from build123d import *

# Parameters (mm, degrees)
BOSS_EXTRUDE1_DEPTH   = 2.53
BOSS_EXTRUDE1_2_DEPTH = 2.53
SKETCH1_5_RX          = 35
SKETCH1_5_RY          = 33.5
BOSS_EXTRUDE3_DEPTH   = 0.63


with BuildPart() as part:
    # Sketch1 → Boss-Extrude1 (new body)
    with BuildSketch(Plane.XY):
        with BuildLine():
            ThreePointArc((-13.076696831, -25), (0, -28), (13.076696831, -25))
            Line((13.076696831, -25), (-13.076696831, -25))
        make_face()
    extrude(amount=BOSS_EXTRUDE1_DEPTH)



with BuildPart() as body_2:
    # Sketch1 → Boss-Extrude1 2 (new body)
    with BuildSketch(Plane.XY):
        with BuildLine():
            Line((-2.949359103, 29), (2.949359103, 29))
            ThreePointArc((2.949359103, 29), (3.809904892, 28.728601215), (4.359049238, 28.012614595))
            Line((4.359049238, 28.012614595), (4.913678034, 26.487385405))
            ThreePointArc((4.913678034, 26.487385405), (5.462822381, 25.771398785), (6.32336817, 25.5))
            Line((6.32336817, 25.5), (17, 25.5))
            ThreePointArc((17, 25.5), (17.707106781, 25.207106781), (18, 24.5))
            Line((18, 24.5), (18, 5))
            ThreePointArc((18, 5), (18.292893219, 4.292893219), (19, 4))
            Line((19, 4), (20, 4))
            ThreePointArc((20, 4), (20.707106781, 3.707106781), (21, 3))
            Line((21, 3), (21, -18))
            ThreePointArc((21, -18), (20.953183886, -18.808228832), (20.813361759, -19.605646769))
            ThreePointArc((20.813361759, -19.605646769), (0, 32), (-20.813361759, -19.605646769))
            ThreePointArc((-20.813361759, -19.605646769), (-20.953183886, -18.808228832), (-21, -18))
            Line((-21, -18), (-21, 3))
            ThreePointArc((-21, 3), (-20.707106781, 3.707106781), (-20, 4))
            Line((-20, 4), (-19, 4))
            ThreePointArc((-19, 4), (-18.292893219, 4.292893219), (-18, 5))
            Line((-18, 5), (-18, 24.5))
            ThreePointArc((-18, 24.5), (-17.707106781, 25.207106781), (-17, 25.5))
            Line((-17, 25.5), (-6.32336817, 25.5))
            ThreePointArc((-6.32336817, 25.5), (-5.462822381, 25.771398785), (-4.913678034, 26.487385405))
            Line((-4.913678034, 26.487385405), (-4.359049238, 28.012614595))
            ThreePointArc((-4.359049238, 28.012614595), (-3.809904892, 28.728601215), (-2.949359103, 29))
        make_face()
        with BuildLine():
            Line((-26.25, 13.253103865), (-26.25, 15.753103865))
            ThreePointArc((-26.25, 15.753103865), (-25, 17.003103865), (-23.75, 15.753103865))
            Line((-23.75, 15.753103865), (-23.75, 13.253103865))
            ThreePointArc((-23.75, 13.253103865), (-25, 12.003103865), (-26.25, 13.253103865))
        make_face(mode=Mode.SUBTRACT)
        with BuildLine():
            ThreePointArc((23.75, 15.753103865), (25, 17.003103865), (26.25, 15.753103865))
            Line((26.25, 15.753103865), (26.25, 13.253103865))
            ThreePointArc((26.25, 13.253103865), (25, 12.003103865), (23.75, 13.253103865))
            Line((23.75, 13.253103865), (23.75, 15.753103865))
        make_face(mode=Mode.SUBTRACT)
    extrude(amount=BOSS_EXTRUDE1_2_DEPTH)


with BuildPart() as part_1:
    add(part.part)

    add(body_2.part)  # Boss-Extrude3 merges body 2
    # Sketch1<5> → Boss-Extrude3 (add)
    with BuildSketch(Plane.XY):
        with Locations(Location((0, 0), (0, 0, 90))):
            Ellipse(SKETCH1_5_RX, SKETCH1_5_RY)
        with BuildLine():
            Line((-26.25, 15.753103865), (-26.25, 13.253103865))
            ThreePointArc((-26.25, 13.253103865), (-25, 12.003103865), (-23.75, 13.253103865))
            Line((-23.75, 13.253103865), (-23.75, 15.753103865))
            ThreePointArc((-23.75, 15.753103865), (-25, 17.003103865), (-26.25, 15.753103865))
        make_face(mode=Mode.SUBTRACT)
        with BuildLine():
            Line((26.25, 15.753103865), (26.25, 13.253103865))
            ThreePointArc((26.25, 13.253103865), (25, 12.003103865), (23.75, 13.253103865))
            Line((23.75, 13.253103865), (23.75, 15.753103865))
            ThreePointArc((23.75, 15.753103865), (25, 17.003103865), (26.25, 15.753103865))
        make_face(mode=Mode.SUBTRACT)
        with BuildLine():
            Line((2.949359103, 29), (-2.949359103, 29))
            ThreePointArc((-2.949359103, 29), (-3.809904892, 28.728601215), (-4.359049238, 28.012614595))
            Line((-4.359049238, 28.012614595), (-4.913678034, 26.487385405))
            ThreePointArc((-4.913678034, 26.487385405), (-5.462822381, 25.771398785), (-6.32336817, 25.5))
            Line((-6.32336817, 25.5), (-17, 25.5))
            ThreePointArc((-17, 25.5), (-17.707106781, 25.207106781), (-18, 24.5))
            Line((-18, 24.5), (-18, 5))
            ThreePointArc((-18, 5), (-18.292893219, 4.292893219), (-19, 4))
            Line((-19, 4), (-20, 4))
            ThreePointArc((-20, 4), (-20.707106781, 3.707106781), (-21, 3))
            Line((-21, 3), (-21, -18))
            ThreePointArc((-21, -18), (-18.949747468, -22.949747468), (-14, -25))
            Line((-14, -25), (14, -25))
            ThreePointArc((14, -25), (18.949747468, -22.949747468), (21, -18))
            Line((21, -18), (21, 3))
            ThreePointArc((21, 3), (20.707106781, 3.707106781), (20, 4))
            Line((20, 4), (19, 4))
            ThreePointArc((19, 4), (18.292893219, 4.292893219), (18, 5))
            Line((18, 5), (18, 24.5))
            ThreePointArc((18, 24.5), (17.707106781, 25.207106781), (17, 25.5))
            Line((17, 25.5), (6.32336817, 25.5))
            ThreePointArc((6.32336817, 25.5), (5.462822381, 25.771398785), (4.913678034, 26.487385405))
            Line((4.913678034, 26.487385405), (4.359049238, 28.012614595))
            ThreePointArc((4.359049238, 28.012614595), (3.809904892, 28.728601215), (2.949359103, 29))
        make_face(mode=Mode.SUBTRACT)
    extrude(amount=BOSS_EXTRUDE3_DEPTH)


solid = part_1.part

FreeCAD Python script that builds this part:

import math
import FreeCAD as App
import Part
import Sketcher
from FreeCAD import Vector

doc = App.newDocument("Part")
body = doc.addObject("PartDesign::Body", "Body")

sketch1 = doc.addObject("Sketcher::SketchObject", "Sketch")
body.addObject(sketch1)
sketch1.AttachmentSupport = (doc.XY_Plane, [""])
sketch1.MapMode = "FlatFace"
sketch1.addGeometry([
    Part.ArcOfCircle(Part.Circle(Vector(0, 2, 0), Vector(0, 0, 1), 30), math.radians(-116), math.radians(-64)),
    Part.LineSegment(Vector(13, -25, 0), Vector(-13, -25, 0)),
], False)
sketch1.addConstraint([
    Sketcher.Constraint("Coincident", 0, 1, 1, 2),
    Sketcher.Constraint("Coincident", 1, 1, 0, 2),
    Sketcher.Constraint("Horizontal", 1),
    Sketcher.Constraint("PointOnObject", 0, 3, -2),
    Sketcher.Constraint("Radius", 0, 30.0),
    Sketcher.Constraint("DistanceY", -1, 1, 0, 3, 2.0),
    Sketcher.Constraint("DistanceY", 0, 1, -1, 1, 25.0),
])
pad1 = doc.addObject("PartDesign::Pad", "Pad")
body.addObject(pad1)
pad1.Profile = sketch1
pad1.Length = 2.53
body2 = doc.addObject("PartDesign::Body", "Body001")

sketch2 = doc.addObject("Sketcher::SketchObject", "Sketch001")
body2.addObject(sketch2)
sketch2.AttachmentSupport = (doc.getObject("XY_Plane001"), [""])
sketch2.MapMode = "FlatFace"
sketch2.addGeometry([
    Part.LineSegment(Vector(-2.9, 29, 0), Vector(2.9, 29, 0)),
    Part.ArcOfCircle(Part.Circle(Vector(2.9, 27.5, 0), Vector(0, 0, 1), 1.5), math.radians(20), math.radians(90)),
    Part.LineSegment(Vector(4.4, 28, 0), Vector(4.9, 26.5, 0)),
    Part.ArcOfCircle(Part.Circle(Vector(6.3, 27, 0), Vector(0, 0, 1), 1.5), math.radians(-160), math.radians(-90)),
    Part.LineSegment(Vector(6.3, 25.5, 0), Vector(17, 25.5, 0)),
    Part.ArcOfCircle(Part.Circle(Vector(17, 24.5, 0), Vector(0, 0, 1), 1), math.radians(0), math.radians(90)),
    Part.LineSegment(Vector(18, 24.5, 0), Vector(18, 5, 0)),
    Part.ArcOfCircle(Part.Circle(Vector(19, 5, 0), Vector(0, 0, 1), 1), math.radians(-180), math.radians(-90)),
    Part.LineSegment(Vector(19, 4, 0), Vector(20, 4, 0)),
    Part.ArcOfCircle(Part.Circle(Vector(20, 3, 0), Vector(0, 0, 1), 1), math.radians(0), math.radians(90)),
    Part.LineSegment(Vector(21, 3, 0), Vector(21, -18, 0)),
    Part.ArcOfCircle(Part.Circle(Vector(14, -18, 0), Vector(0, 0, 1), 7), math.radians(-13.26), math.radians(0)),
    Part.ArcOfCircle(Part.Circle(Vector(0, 2, 0), Vector(0, 0, 1), 30), math.radians(-46), math.radians(226)),
    Part.ArcOfCircle(Part.Circle(Vector(-14, -18, 0), Vector(0, 0, 1), 7), math.radians(-180), math.radians(-166.74)),
    Part.LineSegment(Vector(-21, -18, 0), Vector(-21, 3, 0)),
    Part.ArcOfCircle(Part.Circle(Vector(-20, 3, 0), Vector(0, 0, 1), 1), math.radians(90), math.radians(180)),
    Part.LineSegment(Vector(-20, 4, 0), Vector(-19, 4, 0)),
    Part.ArcOfCircle(Part.Circle(Vector(-19, 5, 0), Vector(0, 0, 1), 1), math.radians(-90), math.radians(0)),
    Part.LineSegment(Vector(-18, 5, 0), Vector(-18, 24.5, 0)),
    Part.ArcOfCircle(Part.Circle(Vector(-17, 24.5, 0), Vector(0, 0, 1), 1), math.radians(90), math.radians(180)),
    Part.LineSegment(Vector(-17, 25.5, 0), Vector(-6.3, 25.5, 0)),
    Part.ArcOfCircle(Part.Circle(Vector(-6.3, 27, 0), Vector(0, 0, 1), 1.5), math.radians(-90), math.radians(-20)),
    Part.LineSegment(Vector(-4.9, 26.5, 0), Vector(-4.4, 28, 0)),
    Part.ArcOfCircle(Part.Circle(Vector(-2.9, 27.5, 0), Vector(0, 0, 1), 1.5), math.radians(90), math.radians(160)),
    Part.ArcOfCircle(Part.Circle(Vector(-25, 13.3, 0), Vector(0, 0, 1), 1.2), math.radians(180), math.radians(360)),
    Part.LineSegment(Vector(-26.2, 13.3, 0), Vector(-26.2, 15.8, 0)),
    Part.ArcOfCircle(Part.Circle(Vector(-25, 15.8, 0), Vector(0, 0, 1), 1.2), math.radians(0), math.radians(180)),
    Part.LineSegment(Vector(-23.8, 15.8, 0), Vector(-23.8, 13.3, 0)),
    Part.LineSegment(Vector(23.8, 13.3, 0), Vector(23.8, 15.8, 0)),
    Part.ArcOfCircle(Part.Circle(Vector(25, 15.8, 0), Vector(0, 0, 1), 1.2), math.radians(0), math.radians(180)),
    Part.LineSegment(Vector(26.2, 15.8, 0), Vector(26.2, 13.3, 0)),
    Part.ArcOfCircle(Part.Circle(Vector(25, 13.3, 0), Vector(0, 0, 1), 1.2), math.radians(180), math.radians(360)),
], False)
sketch2.addConstraint([
    Sketcher.Constraint("Tangent", 0, 2, 1, 2),
    Sketcher.Constraint("Tangent", 1, 1, 2, 1),
    Sketcher.Constraint("Tangent", 2, 2, 3, 1),
    Sketcher.Constraint("Tangent", 3, 2, 4, 1),
    Sketcher.Constraint("Tangent", 4, 2, 5, 2),
    Sketcher.Constraint("Tangent", 5, 1, 6, 1),
    Sketcher.Constraint("Tangent", 6, 2, 7, 1),
    Sketcher.Constraint("Tangent", 7, 2, 8, 1),
    Sketcher.Constraint("Tangent", 8, 2, 9, 2),
    Sketcher.Constraint("Tangent", 9, 1, 10, 1),
    Sketcher.Constraint("Tangent", 10, 2, 11, 2),
    Sketcher.Constraint("Coincident", 11, 1, 12, 1),
    Sketcher.Constraint("Coincident", 12, 2, 13, 2),
    Sketcher.Constraint("Tangent", 13, 1, 14, 1),
    Sketcher.Constraint("Tangent", 14, 2, 15, 2),
    Sketcher.Constraint("Tangent", 15, 1, 16, 1),
    Sketcher.Constraint("Tangent", 16, 2, 17, 1),
    Sketcher.Constraint("Tangent", 17, 2, 18, 1),
    Sketcher.Constraint("Tangent", 18, 2, 19, 2),
    Sketcher.Constraint("Tangent", 19, 1, 20, 1),
    Sketcher.Constraint("Tangent", 20, 2, 21, 1),
    Sketcher.Constraint("Tangent", 21, 2, 22, 1),
    Sketcher.Constraint("Tangent", 22, 2, 23, 2),
    Sketcher.Constraint("Tangent", 23, 1, 0, 1),
    Sketcher.Constraint("Tangent", 24, 1, 25, 1),
    Sketcher.Constraint("Tangent", 25, 2, 26, 2),
    Sketcher.Constraint("Tangent", 26, 1, 27, 1),
    Sketcher.Constraint("Tangent", 27, 2, 24, 2),
    Sketcher.Constraint("Tangent", 28, 2, 29, 2),
    Sketcher.Constraint("Tangent", 29, 1, 30, 1),
    Sketcher.Constraint("Tangent", 30, 2, 31, 2),
    Sketcher.Constraint("Tangent", 31, 1, 28, 1),
    Sketcher.Constraint("Horizontal", 0),
    Sketcher.Constraint("Horizontal", 4),
    Sketcher.Constraint("Vertical", 6),
    Sketcher.Constraint("Horizontal", 8),
    Sketcher.Constraint("Vertical", 10),
    Sketcher.Constraint("Vertical", 14),
    Sketcher.Constraint("Horizontal", 16),
    Sketcher.Constraint("Vertical", 18),
    Sketcher.Constraint("Horizontal", 20),
    Sketcher.Constraint("Vertical", 25),
    Sketcher.Constraint("Vertical", 27),
    Sketcher.Constraint("Vertical", 28),
    Sketcher.Constraint("Vertical", 30),
    Sketcher.Constraint("Equal", 1, 3),
    Sketcher.Constraint("Equal", 5, 7),
    Sketcher.Constraint("Equal", 7, 9),
    Sketcher.Constraint("Equal", 11, 13),
    Sketcher.Constraint("Equal", 9, 15),
    Sketcher.Constraint("Equal", 15, 17),
    Sketcher.Constraint("Equal", 17, 19),
    Sketcher.Constraint("Equal", 3, 21),
    Sketcher.Constraint("Equal", 21, 23),
    Sketcher.Constraint("Equal", 26, 29),
    Sketcher.Constraint("Symmetric", 11, 3, 13, 3, -2),
    Sketcher.Constraint("Symmetric", 7, 3, 17, 3, -2),
    Sketcher.Constraint("Symmetric", 3, 3, 21, 3, -2),
    Sketcher.Constraint("Symmetric", 26, 3, 29, 3, -2),
    Sketcher.Constraint("PointOnObject", 12, 3, -2),
    Sketcher.Constraint("Horizontal", 24, 3, 31, 3),
    Sketcher.Constraint("Horizontal", 2, 2, 21, 2),
    Sketcher.Constraint("Radius", 5, 1.0),
    Sketcher.Constraint("Radius", 11, 7.0),
    Sketcher.Constraint("Radius", 12, 30.0),
    Sketcher.Constraint("Radius", 1, 1.5),
    Sketcher.Constraint("DistanceX", 8, 1, 8, 2, 1.0),
    Sketcher.Constraint("DistanceY", 10, 2, 10, 1, 21.0),
    Sketcher.Constraint("Radius", 24, 1.25),
    Sketcher.Constraint("DistanceY", 6, 2, 6, 1, 19.5),
    Sketcher.Constraint("DistanceY", 25, 1, 25, 2, 2.5),
    Sketcher.Constraint("DistanceY", -1, 1, 3, 3, 27.0),
    Sketcher.Constraint("DistanceX", -1, 1, 5, 3, 17.0),
    Sketcher.Constraint("DistanceY", -1, 1, 12, 3, 2.0),
    Sketcher.Constraint("DistanceX", 24, 3, -1, 1, 25.0),
    Sketcher.Constraint("DistanceY", -1, 1, 0, 2, 29.0),
    Sketcher.Constraint("DistanceX", 0, 1, 0, 2, 5.898718),
    Sketcher.Constraint("DistanceX", 4, 1, 4, 2, 10.676632),
    Sketcher.Constraint("DistanceY", 12, 2, 24, 3, 32.858751),
])
pad2 = doc.addObject("PartDesign::Pad", "Pad001")
body2.addObject(pad2)
pad2.Profile = sketch2
pad2.Length = 2.53
body.AllowCompound = True
doc.recompute()

boolean = doc.addObject("PartDesign::Boolean", "Boolean")
body.addObject(boolean)
boolean.Type = "Fuse"
boolean.addObjects([body2])

sketch3 = doc.addObject("Sketcher::SketchObject", "Sketch002")
body.addObject(sketch3)
sketch3.AttachmentSupport = (doc.XY_Plane, [""])
sketch3.MapMode = "FlatFace"
sketch3.addGeometry([
    Part.Ellipse(Vector(0, 35, 0), Vector(-33.5, 0, 0), Vector(0, 0, 0)),
    Part.ArcOfCircle(Part.Circle(Vector(25, 15.753104, 0), Vector(0, 0, 1), 1.25), math.radians(0), math.radians(180)),
    Part.LineSegment(Vector(26.25, 15.753104, 0), Vector(26.25, 13.253104, 0)),
    Part.ArcOfCircle(Part.Circle(Vector(25, 13.253104, 0), Vector(0, 0, 1), 1.25), math.radians(180), math.radians(360)),
    Part.LineSegment(Vector(23.75, 13.253104, 0), Vector(23.75, 15.753104, 0)),
    Part.LineSegment(Vector(-2.949359, 29, 0), Vector(2.949359, 29, 0)),
    Part.ArcOfCircle(Part.Circle(Vector(2.949359, 27.5, 0), Vector(0, 0, 1), 1.5), math.radians(19.983107), math.radians(90)),
    Part.LineSegment(Vector(4.359049, 28.012615, 0), Vector(4.913678, 26.487385, 0)),
    Part.ArcOfCircle(Part.Circle(Vector(6.323368, 27, 0), Vector(0, 0, 1), 1.5), math.radians(-160.016893), math.radians(-90)),
    Part.LineSegment(Vector(6.323368, 25.5, 0), Vector(17, 25.5, 0)),
    Part.ArcOfCircle(Part.Circle(Vector(17, 24.5, 0), Vector(0, 0, 1), 1), math.radians(0), math.radians(90)),
    Part.LineSegment(Vector(18, 24.5, 0), Vector(18, 5, 0)),
    Part.ArcOfCircle(Part.Circle(Vector(19, 5, 0), Vector(0, 0, 1), 1), math.radians(-180), math.radians(-90)),
    Part.LineSegment(Vector(19, 4, 0), Vector(20, 4, 0)),
    Part.ArcOfCircle(Part.Circle(Vector(20, 3, 0), Vector(0, 0, 1), 1), math.radians(0), math.radians(90)),
    Part.LineSegment(Vector(21, 3, 0), Vector(21, -18, 0)),
    Part.ArcOfCircle(Part.Circle(Vector(14, -18, 0), Vector(0, 0, 1), 7), math.radians(-90), math.radians(0)),
    Part.LineSegment(Vector(14, -25, 0), Vector(-14, -25, 0)),
    Part.ArcOfCircle(Part.Circle(Vector(-14, -18, 0), Vector(0, 0, 1), 7), math.radians(-180), math.radians(-90)),
    Part.LineSegment(Vector(-21, -18, 0), Vector(-21, 3, 0)),
    Part.ArcOfCircle(Part.Circle(Vector(-20, 3, 0), Vector(0, 0, 1), 1), math.radians(90), math.radians(180)),
    Part.LineSegment(Vector(-20, 4, 0), Vector(-19, 4, 0)),
    Part.ArcOfCircle(Part.Circle(Vector(-19, 5, 0), Vector(0, 0, 1), 1), math.radians(-90), math.radians(0)),
    Part.LineSegment(Vector(-18, 5, 0), Vector(-18, 24.5, 0)),
    Part.ArcOfCircle(Part.Circle(Vector(-17, 24.5, 0), Vector(0, 0, 1), 1), math.radians(90), math.radians(180)),
    Part.LineSegment(Vector(-17, 25.5, 0), Vector(-6.323368, 25.5, 0)),
    Part.ArcOfCircle(Part.Circle(Vector(-6.323368, 27, 0), Vector(0, 0, 1), 1.5), math.radians(-90), math.radians(-19.983107)),
    Part.LineSegment(Vector(-4.913678, 26.487385, 0), Vector(-4.359049, 28.012615, 0)),
    Part.ArcOfCircle(Part.Circle(Vector(-2.949359, 27.5, 0), Vector(0, 0, 1), 1.5), math.radians(90), math.radians(160.016893)),
    Part.LineSegment(Vector(-26.25, 13.253104, 0), Vector(-26.25, 15.753104, 0)),
    Part.ArcOfCircle(Part.Circle(Vector(-25, 15.753104, 0), Vector(0, 0, 1), 1.25), math.radians(0), math.radians(180)),
    Part.LineSegment(Vector(-23.75, 15.753104, 0), Vector(-23.75, 13.253104, 0)),
    Part.ArcOfCircle(Part.Circle(Vector(-25, 13.253104, 0), Vector(0, 0, 1), 1.25), math.radians(180), math.radians(360)),
], False)
sketch3.addConstraint([
    Sketcher.Constraint("Block", 0),
    Sketcher.Constraint("Tangent", 1, 1, 2, 1),
    Sketcher.Constraint("Tangent", 2, 2, 3, 2),
    Sketcher.Constraint("Tangent", 3, 1, 4, 1),
    Sketcher.Constraint("Tangent", 4, 2, 1, 2),
    Sketcher.Constraint("Tangent", 5, 2, 6, 2),
    Sketcher.Constraint("Tangent", 6, 1, 7, 1),
    Sketcher.Constraint("Tangent", 7, 2, 8, 1),
    Sketcher.Constraint("Tangent", 8, 2, 9, 1),
    Sketcher.Constraint("Tangent", 9, 2, 10, 2),
    Sketcher.Constraint("Tangent", 10, 1, 11, 1),
    Sketcher.Constraint("Tangent", 11, 2, 12, 1),
    Sketcher.Constraint("Tangent", 12, 2, 13, 1),
    Sketcher.Constraint("Tangent", 13, 2, 14, 2),
    Sketcher.Constraint("Tangent", 14, 1, 15, 1),
    Sketcher.Constraint("Tangent", 15, 2, 16, 2),
    Sketcher.Constraint("Tangent", 16, 1, 17, 1),
    Sketcher.Constraint("Tangent", 17, 2, 18, 2),
    Sketcher.Constraint("Tangent", 18, 1, 19, 1),
    Sketcher.Constraint("Tangent", 19, 2, 20, 2),
    Sketcher.Constraint("Tangent", 20, 1, 21, 1),
    Sketcher.Constraint("Tangent", 21, 2, 22, 1),
    Sketcher.Constraint("Tangent", 22, 2, 23, 1),
    Sketcher.Constraint("Tangent", 23, 2, 24, 2),
    Sketcher.Constraint("Tangent", 24, 1, 25, 1),
    Sketcher.Constraint("Tangent", 25, 2, 26, 1),
    Sketcher.Constraint("Tangent", 26, 2, 27, 1),
    Sketcher.Constraint("Tangent", 27, 2, 28, 2),
    Sketcher.Constraint("Tangent", 28, 1, 5, 1),
    Sketcher.Constraint("Tangent", 29, 2, 30, 2),
    Sketcher.Constraint("Tangent", 30, 1, 31, 1),
    Sketcher.Constraint("Tangent", 31, 2, 32, 2),
    Sketcher.Constraint("Tangent", 32, 1, 29, 1),
    Sketcher.Constraint("Vertical", 2),
    Sketcher.Constraint("Vertical", 4),
    Sketcher.Constraint("Horizontal", 5),
    Sketcher.Constraint("Horizontal", 9),
    Sketcher.Constraint("Vertical", 11),
    Sketcher.Constraint("Horizontal", 13),
    Sketcher.Constraint("Vertical", 15),
    Sketcher.Constraint("Horizontal", 17),
    Sketcher.Constraint("Vertical", 19),
    Sketcher.Constraint("Horizontal", 21),
    Sketcher.Constraint("Vertical", 23),
    Sketcher.Constraint("Horizontal", 25),
    Sketcher.Constraint("Vertical", 29),
    Sketcher.Constraint("Vertical", 31),
    Sketcher.Constraint("Equal", 6, 8),
    Sketcher.Constraint("Equal", 10, 12),
    Sketcher.Constraint("Equal", 12, 14),
    Sketcher.Constraint("Equal", 16, 18),
    Sketcher.Constraint("Equal", 14, 20),
    Sketcher.Constraint("Equal", 20, 22),
    Sketcher.Constraint("Equal", 22, 24),
    Sketcher.Constraint("Equal", 8, 26),
    Sketcher.Constraint("Equal", 26, 28),
    Sketcher.Constraint("Equal", 3, 30),
    Sketcher.Constraint("Symmetric", 14, 3, 20, 3, -2),
    Sketcher.Constraint("Symmetric", 10, 3, 24, 3, -2),
    Sketcher.Constraint("Symmetric", 1, 3, 30, 3, -2),
    Sketcher.Constraint("Symmetric", 7, 2, 26, 2, -2),
    Sketcher.Constraint("Horizontal", 3, 3, 32, 3),
    Sketcher.Constraint("Radius", 10, 1.0),
    Sketcher.Constraint("Radius", 16, 7.0),
    Sketcher.Constraint("Radius", 6, 1.5),
    Sketcher.Constraint("DistanceX", 13, 1, 13, 2, 1.0),
    Sketcher.Constraint("DistanceX", 17, 2, 17, 1, 28.0),
    Sketcher.Constraint("DistanceY", 15, 2, 15, 1, 21.0),
    Sketcher.Constraint("Radius", 1, 1.25),
    Sketcher.Constraint("DistanceY", 2, 2, 2, 1, 2.5),
    Sketcher.Constraint("DistanceY", 11, 2, 11, 1, 19.5),
    Sketcher.Constraint("DistanceX", -1, 1, 1, 3, 25.0),
    Sketcher.Constraint("DistanceY", -1, 1, 8, 3, 27.0),
    Sketcher.Constraint("DistanceY", -1, 1, 5, 2, 29.0),
    Sketcher.Constraint("DistanceX", 5, 1, 5, 2, 5.898718),
    Sketcher.Constraint("DistanceX", 9, 1, 9, 2, 10.676632),
    Sketcher.Constraint("DistanceY", -1, 1, 1, 3, 15.753104),
])
pad3 = doc.addObject("PartDesign::Pad", "Pad002")
body.addObject(pad3)
pad3.Profile = sketch3
pad3.Length = 0.63

doc.recompute()
